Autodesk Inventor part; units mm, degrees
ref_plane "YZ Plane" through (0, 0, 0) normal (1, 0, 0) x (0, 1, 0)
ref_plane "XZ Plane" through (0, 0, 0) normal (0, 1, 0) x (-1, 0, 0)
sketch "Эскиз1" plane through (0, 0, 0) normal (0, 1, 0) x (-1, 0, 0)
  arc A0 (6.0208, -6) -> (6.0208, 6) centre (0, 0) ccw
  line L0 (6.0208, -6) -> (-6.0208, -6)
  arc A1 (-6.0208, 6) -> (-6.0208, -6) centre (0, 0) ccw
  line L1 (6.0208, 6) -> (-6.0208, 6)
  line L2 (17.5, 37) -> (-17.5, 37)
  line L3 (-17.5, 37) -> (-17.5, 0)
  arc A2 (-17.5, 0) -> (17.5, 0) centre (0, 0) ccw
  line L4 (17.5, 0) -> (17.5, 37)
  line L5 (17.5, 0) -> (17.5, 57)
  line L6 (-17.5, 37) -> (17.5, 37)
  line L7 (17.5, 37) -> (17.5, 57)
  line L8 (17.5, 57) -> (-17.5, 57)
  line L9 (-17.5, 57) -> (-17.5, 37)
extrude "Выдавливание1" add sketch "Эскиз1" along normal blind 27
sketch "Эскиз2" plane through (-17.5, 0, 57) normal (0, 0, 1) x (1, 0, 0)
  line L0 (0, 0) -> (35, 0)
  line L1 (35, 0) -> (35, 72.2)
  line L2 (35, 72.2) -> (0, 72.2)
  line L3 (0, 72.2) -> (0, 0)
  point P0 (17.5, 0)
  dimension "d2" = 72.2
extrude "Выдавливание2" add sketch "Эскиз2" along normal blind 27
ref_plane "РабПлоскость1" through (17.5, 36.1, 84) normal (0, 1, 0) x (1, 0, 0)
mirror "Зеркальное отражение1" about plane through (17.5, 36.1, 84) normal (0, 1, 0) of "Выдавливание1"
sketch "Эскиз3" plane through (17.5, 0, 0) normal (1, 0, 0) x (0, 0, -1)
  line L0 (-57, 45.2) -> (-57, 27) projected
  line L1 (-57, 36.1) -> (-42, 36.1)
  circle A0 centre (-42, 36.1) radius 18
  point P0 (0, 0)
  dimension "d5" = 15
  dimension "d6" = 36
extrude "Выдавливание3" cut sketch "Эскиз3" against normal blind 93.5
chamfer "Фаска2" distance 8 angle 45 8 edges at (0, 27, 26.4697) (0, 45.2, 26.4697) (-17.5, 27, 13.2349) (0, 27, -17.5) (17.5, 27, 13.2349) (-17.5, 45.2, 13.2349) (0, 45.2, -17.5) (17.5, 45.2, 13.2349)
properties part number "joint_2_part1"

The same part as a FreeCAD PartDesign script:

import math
import FreeCAD as App
import Part
import Sketcher


def edges_at(feature, points):
    """Names of the edges that pass closest to the given points."""
    edges = feature.Shape.Edges
    near = lambda p: min(range(len(edges)), key=lambda i: edges[i].distToShape(Part.Vertex(*p))[0])
    return sorted({f"Edge{near(p) + 1}" for p in points})

doc = App.newDocument("Part")
params = doc.addObject("Spreadsheet::Sheet", "Params")
for row, (alias, value) in enumerate([
    ("sketch1_radius", "17.5 mm"),
    ("sketch1_radius2", "8.5 mm"),
    ("sketch1_height", "57 mm"),
    ("pad1_length", "27 mm"),
    ("sketch2_height", "72.2 mm"),
    ("sketch2_width", "35 mm"),
    ("pad2_length", "27 mm"),
    ("sketch3_diameter", "36 mm"),
    ("pocket1_length", "93.5 mm"),
    ("chamfer_size", "8 mm"),
], start=1):
    params.set(f"A{row}", alias)
    params.set(f"B{row}", "=" + value)
    params.setAlias(f"B{row}", alias)

body = doc.addObject("PartDesign::Body", "Body")

# Sketch on XZ plane
sketch1 = body.newObject("Sketcher::SketchObject", "Sketch")
sketch1.AttachmentSupport = (doc.getObject("XZ_Plane"), [""])
sketch1.MapMode = "FlatFace"
sketch1.addGeometry([
    Part.LineSegment(App.Vector(-18, 0, 0), App.Vector(-18, 57, 0)),  # 0
    Part.LineSegment(App.Vector(-18, 57, 0), App.Vector(18, 57, 0)),  # 1
    Part.LineSegment(App.Vector(18, 57, 0), App.Vector(18, 0, 0)),  # 2
    Part.ArcOfCircle(Part.Circle(App.Vector(0, 0, 0), App.Vector(0, 0, 1), 18), math.radians(180), math.radians(360)),  # 3
    Part.ArcOfCircle(Part.Circle(App.Vector(0, 0, 0), App.Vector(0, 0, 1), 9), math.radians(135), math.radians(225)),  # 4
    Part.LineSegment(App.Vector(-6, -6, 0), App.Vector(6, -6, 0)),  # 5
    Part.ArcOfCircle(Part.Circle(App.Vector(0, 0, 0), App.Vector(0, 0, 1), 9), math.radians(-45), math.radians(45)),  # 6
    Part.LineSegment(App.Vector(6, 6, 0), App.Vector(-6, 6, 0)),  # 7
], False)
sketch1.addConstraint([
    Sketcher.Constraint("Coincident", 0, 2, 1, 1),
    Sketcher.Constraint("Coincident", 1, 2, 2, 1),
    Sketcher.Constraint("Tangent", 2, 2, 3, 2),
    Sketcher.Constraint("Tangent", 3, 1, 0, 1),
    Sketcher.Constraint("Coincident", 4, 2, 5, 1),
    Sketcher.Constraint("Coincident", 5, 2, 6, 1),
    Sketcher.Constraint("Coincident", 6, 2, 7, 1),
    Sketcher.Constraint("Coincident", 7, 2, 4, 1),
    Sketcher.Constraint("Vertical", 0),
    Sketcher.Constraint("Horizontal", 1),
    Sketcher.Constraint("Vertical", 2),
    Sketcher.Constraint("Horizontal", 5),
    Sketcher.Constraint("Horizontal", 7),
    Sketcher.Constraint("Coincident", 3, 3, -1, 1),
    Sketcher.Constraint("Coincident", 4, 3, -1, 1),
    Sketcher.Constraint("Coincident", 6, 3, -1, 1),
    Sketcher.Constraint("Equal", 4, 6),
    Sketcher.Constraint("Vertical", 5, 2, 6, 2),
    Sketcher.Constraint("Radius", 3, 17.5),
    Sketcher.Constraint("Radius", 4, 8.5),
    Sketcher.Constraint("DistanceY", 0, 1, 0, 2, 57.0),
    Sketcher.Constraint("DistanceY", 4, 2, -1, 1, 6.0),
])
sketch1.setExpression("Constraints[18]", "Params.sketch1_radius")
sketch1.setExpression("Constraints[19]", "Params.sketch1_radius2")
sketch1.setExpression("Constraints[20]", "Params.sketch1_height")
pad1 = body.newObject("PartDesign::Pad", "Pad")
pad1.Profile = sketch1
pad1.setExpression("Length", "Params.pad1_length")
pad1.Reversed = True

# Sketch on XY plane
sketch2 = body.newObject("Sketcher::SketchObject", "Sketch001")
sketch2.AttachmentSupport = (doc.getObject("XY_Plane"), [""])
sketch2.MapMode = "FlatFace"
sketch2.AttachmentOffset = App.Placement(App.Vector(0, 0, 57), App.Rotation())
sketch2.addGeometry([
    Part.LineSegment(App.Vector(-18, 72, 0), App.Vector(-18, 0, 0)),
    Part.LineSegment(App.Vector(-18, 0, 0), App.Vector(18, 0, 0)),
    Part.LineSegment(App.Vector(18, 0, 0), App.Vector(18, 72, 0)),
    Part.LineSegment(App.Vector(18, 72, 0), App.Vector(-18, 72, 0)),
], False)
sketch2.addConstraint([
    Sketcher.Constraint("Coincident", 0, 2, 1, 1),
    Sketcher.Constraint("Coincident", 1, 2, 2, 1),
    Sketcher.Constraint("Coincident", 2, 2, 3, 1),
    Sketcher.Constraint("Coincident", 3, 2, 0, 1),
    Sketcher.Constraint("Vertical", 0),
    Sketcher.Constraint("Horizontal", 1),
    Sketcher.Constraint("Vertical", 2),
    Sketcher.Constraint("Horizontal", 3),
    Sketcher.Constraint("Symmetric", 0, 2, 1, 2, -1, 1),
    Sketcher.Constraint("DistanceY", 0, 2, 0, 1, 72.2),
    Sketcher.Constraint("DistanceX", 1, 1, 1, 2, 35.0),
])
sketch2.setExpression("Constraints[9]", "Params.sketch2_height")
sketch2.setExpression("Constraints[10]", "Params.sketch2_width")
pad2 = body.newObject("PartDesign::Pad", "Pad001")
pad2.Profile = sketch2
pad2.setExpression("Length", "Params.pad2_length")
doc.recompute()

datumplane = body.newObject("PartDesign::Plane", "DatumPlane")
datumplane.AttachmentSupport = (doc.getObject("XZ_Plane"), [""])
datumplane.MapMode = "FlatFace"
datumplane.AttachmentOffset = App.Placement(App.Vector(0, 0, -36.1), App.Rotation())
mirrored = body.newObject("PartDesign::Mirrored", "Mirrored")
mirrored.Originals = [pad1]
mirrored.MirrorPlane = (datumplane, [""])
body.Tip = mirrored

# Sketch on YZ plane
sketch3 = body.newObject("Sketcher::SketchObject", "Sketch002")
sketch3.AttachmentSupport = (doc.getObject("YZ_Plane"), [""])
sketch3.MapMode = "FlatFace"
sketch3.AttachmentOffset = App.Placement(App.Vector(0, 0, 17.5), App.Rotation())
sketch3.addGeometry(Part.Circle(App.Vector(36, 42, 0), App.Vector(0, 0, 1), 18), False)
sketch3.addConstraint([
    Sketcher.Constraint("Diameter", 0, 36.0),
    Sketcher.Constraint("DistanceY", -1, 1, 0, 3, 42.0),
    Sketcher.Constraint("DistanceX", -1, 1, 0, 3, 36.1),
])
sketch3.setExpression("Constraints[0]", "Params.sketch3_diameter")
pocket1 = body.newObject("PartDesign::Pocket", "Pocket")
pocket1.Profile = sketch3
pocket1.setExpression("Length", "Params.pocket1_length")
doc.recompute()

chamfer = body.newObject("PartDesign::Chamfer", "Chamfer")
chamfer.Base = (pocket1, edges_at(pocket1, [
    (0, 27, 26.47),
    (0, 45.2, 26.47),
    (-17.5, 27, 13.235),
    (0, 27, -17.5),
    (17.5, 27, 13.235),
    (-17.5, 45.2, 13.235),
    (0, 45.2, -17.5),
    (17.5, 45.2, 13.235),
]))
chamfer.setExpression("Size", "Params.chamfer_size")

doc.recompute()
